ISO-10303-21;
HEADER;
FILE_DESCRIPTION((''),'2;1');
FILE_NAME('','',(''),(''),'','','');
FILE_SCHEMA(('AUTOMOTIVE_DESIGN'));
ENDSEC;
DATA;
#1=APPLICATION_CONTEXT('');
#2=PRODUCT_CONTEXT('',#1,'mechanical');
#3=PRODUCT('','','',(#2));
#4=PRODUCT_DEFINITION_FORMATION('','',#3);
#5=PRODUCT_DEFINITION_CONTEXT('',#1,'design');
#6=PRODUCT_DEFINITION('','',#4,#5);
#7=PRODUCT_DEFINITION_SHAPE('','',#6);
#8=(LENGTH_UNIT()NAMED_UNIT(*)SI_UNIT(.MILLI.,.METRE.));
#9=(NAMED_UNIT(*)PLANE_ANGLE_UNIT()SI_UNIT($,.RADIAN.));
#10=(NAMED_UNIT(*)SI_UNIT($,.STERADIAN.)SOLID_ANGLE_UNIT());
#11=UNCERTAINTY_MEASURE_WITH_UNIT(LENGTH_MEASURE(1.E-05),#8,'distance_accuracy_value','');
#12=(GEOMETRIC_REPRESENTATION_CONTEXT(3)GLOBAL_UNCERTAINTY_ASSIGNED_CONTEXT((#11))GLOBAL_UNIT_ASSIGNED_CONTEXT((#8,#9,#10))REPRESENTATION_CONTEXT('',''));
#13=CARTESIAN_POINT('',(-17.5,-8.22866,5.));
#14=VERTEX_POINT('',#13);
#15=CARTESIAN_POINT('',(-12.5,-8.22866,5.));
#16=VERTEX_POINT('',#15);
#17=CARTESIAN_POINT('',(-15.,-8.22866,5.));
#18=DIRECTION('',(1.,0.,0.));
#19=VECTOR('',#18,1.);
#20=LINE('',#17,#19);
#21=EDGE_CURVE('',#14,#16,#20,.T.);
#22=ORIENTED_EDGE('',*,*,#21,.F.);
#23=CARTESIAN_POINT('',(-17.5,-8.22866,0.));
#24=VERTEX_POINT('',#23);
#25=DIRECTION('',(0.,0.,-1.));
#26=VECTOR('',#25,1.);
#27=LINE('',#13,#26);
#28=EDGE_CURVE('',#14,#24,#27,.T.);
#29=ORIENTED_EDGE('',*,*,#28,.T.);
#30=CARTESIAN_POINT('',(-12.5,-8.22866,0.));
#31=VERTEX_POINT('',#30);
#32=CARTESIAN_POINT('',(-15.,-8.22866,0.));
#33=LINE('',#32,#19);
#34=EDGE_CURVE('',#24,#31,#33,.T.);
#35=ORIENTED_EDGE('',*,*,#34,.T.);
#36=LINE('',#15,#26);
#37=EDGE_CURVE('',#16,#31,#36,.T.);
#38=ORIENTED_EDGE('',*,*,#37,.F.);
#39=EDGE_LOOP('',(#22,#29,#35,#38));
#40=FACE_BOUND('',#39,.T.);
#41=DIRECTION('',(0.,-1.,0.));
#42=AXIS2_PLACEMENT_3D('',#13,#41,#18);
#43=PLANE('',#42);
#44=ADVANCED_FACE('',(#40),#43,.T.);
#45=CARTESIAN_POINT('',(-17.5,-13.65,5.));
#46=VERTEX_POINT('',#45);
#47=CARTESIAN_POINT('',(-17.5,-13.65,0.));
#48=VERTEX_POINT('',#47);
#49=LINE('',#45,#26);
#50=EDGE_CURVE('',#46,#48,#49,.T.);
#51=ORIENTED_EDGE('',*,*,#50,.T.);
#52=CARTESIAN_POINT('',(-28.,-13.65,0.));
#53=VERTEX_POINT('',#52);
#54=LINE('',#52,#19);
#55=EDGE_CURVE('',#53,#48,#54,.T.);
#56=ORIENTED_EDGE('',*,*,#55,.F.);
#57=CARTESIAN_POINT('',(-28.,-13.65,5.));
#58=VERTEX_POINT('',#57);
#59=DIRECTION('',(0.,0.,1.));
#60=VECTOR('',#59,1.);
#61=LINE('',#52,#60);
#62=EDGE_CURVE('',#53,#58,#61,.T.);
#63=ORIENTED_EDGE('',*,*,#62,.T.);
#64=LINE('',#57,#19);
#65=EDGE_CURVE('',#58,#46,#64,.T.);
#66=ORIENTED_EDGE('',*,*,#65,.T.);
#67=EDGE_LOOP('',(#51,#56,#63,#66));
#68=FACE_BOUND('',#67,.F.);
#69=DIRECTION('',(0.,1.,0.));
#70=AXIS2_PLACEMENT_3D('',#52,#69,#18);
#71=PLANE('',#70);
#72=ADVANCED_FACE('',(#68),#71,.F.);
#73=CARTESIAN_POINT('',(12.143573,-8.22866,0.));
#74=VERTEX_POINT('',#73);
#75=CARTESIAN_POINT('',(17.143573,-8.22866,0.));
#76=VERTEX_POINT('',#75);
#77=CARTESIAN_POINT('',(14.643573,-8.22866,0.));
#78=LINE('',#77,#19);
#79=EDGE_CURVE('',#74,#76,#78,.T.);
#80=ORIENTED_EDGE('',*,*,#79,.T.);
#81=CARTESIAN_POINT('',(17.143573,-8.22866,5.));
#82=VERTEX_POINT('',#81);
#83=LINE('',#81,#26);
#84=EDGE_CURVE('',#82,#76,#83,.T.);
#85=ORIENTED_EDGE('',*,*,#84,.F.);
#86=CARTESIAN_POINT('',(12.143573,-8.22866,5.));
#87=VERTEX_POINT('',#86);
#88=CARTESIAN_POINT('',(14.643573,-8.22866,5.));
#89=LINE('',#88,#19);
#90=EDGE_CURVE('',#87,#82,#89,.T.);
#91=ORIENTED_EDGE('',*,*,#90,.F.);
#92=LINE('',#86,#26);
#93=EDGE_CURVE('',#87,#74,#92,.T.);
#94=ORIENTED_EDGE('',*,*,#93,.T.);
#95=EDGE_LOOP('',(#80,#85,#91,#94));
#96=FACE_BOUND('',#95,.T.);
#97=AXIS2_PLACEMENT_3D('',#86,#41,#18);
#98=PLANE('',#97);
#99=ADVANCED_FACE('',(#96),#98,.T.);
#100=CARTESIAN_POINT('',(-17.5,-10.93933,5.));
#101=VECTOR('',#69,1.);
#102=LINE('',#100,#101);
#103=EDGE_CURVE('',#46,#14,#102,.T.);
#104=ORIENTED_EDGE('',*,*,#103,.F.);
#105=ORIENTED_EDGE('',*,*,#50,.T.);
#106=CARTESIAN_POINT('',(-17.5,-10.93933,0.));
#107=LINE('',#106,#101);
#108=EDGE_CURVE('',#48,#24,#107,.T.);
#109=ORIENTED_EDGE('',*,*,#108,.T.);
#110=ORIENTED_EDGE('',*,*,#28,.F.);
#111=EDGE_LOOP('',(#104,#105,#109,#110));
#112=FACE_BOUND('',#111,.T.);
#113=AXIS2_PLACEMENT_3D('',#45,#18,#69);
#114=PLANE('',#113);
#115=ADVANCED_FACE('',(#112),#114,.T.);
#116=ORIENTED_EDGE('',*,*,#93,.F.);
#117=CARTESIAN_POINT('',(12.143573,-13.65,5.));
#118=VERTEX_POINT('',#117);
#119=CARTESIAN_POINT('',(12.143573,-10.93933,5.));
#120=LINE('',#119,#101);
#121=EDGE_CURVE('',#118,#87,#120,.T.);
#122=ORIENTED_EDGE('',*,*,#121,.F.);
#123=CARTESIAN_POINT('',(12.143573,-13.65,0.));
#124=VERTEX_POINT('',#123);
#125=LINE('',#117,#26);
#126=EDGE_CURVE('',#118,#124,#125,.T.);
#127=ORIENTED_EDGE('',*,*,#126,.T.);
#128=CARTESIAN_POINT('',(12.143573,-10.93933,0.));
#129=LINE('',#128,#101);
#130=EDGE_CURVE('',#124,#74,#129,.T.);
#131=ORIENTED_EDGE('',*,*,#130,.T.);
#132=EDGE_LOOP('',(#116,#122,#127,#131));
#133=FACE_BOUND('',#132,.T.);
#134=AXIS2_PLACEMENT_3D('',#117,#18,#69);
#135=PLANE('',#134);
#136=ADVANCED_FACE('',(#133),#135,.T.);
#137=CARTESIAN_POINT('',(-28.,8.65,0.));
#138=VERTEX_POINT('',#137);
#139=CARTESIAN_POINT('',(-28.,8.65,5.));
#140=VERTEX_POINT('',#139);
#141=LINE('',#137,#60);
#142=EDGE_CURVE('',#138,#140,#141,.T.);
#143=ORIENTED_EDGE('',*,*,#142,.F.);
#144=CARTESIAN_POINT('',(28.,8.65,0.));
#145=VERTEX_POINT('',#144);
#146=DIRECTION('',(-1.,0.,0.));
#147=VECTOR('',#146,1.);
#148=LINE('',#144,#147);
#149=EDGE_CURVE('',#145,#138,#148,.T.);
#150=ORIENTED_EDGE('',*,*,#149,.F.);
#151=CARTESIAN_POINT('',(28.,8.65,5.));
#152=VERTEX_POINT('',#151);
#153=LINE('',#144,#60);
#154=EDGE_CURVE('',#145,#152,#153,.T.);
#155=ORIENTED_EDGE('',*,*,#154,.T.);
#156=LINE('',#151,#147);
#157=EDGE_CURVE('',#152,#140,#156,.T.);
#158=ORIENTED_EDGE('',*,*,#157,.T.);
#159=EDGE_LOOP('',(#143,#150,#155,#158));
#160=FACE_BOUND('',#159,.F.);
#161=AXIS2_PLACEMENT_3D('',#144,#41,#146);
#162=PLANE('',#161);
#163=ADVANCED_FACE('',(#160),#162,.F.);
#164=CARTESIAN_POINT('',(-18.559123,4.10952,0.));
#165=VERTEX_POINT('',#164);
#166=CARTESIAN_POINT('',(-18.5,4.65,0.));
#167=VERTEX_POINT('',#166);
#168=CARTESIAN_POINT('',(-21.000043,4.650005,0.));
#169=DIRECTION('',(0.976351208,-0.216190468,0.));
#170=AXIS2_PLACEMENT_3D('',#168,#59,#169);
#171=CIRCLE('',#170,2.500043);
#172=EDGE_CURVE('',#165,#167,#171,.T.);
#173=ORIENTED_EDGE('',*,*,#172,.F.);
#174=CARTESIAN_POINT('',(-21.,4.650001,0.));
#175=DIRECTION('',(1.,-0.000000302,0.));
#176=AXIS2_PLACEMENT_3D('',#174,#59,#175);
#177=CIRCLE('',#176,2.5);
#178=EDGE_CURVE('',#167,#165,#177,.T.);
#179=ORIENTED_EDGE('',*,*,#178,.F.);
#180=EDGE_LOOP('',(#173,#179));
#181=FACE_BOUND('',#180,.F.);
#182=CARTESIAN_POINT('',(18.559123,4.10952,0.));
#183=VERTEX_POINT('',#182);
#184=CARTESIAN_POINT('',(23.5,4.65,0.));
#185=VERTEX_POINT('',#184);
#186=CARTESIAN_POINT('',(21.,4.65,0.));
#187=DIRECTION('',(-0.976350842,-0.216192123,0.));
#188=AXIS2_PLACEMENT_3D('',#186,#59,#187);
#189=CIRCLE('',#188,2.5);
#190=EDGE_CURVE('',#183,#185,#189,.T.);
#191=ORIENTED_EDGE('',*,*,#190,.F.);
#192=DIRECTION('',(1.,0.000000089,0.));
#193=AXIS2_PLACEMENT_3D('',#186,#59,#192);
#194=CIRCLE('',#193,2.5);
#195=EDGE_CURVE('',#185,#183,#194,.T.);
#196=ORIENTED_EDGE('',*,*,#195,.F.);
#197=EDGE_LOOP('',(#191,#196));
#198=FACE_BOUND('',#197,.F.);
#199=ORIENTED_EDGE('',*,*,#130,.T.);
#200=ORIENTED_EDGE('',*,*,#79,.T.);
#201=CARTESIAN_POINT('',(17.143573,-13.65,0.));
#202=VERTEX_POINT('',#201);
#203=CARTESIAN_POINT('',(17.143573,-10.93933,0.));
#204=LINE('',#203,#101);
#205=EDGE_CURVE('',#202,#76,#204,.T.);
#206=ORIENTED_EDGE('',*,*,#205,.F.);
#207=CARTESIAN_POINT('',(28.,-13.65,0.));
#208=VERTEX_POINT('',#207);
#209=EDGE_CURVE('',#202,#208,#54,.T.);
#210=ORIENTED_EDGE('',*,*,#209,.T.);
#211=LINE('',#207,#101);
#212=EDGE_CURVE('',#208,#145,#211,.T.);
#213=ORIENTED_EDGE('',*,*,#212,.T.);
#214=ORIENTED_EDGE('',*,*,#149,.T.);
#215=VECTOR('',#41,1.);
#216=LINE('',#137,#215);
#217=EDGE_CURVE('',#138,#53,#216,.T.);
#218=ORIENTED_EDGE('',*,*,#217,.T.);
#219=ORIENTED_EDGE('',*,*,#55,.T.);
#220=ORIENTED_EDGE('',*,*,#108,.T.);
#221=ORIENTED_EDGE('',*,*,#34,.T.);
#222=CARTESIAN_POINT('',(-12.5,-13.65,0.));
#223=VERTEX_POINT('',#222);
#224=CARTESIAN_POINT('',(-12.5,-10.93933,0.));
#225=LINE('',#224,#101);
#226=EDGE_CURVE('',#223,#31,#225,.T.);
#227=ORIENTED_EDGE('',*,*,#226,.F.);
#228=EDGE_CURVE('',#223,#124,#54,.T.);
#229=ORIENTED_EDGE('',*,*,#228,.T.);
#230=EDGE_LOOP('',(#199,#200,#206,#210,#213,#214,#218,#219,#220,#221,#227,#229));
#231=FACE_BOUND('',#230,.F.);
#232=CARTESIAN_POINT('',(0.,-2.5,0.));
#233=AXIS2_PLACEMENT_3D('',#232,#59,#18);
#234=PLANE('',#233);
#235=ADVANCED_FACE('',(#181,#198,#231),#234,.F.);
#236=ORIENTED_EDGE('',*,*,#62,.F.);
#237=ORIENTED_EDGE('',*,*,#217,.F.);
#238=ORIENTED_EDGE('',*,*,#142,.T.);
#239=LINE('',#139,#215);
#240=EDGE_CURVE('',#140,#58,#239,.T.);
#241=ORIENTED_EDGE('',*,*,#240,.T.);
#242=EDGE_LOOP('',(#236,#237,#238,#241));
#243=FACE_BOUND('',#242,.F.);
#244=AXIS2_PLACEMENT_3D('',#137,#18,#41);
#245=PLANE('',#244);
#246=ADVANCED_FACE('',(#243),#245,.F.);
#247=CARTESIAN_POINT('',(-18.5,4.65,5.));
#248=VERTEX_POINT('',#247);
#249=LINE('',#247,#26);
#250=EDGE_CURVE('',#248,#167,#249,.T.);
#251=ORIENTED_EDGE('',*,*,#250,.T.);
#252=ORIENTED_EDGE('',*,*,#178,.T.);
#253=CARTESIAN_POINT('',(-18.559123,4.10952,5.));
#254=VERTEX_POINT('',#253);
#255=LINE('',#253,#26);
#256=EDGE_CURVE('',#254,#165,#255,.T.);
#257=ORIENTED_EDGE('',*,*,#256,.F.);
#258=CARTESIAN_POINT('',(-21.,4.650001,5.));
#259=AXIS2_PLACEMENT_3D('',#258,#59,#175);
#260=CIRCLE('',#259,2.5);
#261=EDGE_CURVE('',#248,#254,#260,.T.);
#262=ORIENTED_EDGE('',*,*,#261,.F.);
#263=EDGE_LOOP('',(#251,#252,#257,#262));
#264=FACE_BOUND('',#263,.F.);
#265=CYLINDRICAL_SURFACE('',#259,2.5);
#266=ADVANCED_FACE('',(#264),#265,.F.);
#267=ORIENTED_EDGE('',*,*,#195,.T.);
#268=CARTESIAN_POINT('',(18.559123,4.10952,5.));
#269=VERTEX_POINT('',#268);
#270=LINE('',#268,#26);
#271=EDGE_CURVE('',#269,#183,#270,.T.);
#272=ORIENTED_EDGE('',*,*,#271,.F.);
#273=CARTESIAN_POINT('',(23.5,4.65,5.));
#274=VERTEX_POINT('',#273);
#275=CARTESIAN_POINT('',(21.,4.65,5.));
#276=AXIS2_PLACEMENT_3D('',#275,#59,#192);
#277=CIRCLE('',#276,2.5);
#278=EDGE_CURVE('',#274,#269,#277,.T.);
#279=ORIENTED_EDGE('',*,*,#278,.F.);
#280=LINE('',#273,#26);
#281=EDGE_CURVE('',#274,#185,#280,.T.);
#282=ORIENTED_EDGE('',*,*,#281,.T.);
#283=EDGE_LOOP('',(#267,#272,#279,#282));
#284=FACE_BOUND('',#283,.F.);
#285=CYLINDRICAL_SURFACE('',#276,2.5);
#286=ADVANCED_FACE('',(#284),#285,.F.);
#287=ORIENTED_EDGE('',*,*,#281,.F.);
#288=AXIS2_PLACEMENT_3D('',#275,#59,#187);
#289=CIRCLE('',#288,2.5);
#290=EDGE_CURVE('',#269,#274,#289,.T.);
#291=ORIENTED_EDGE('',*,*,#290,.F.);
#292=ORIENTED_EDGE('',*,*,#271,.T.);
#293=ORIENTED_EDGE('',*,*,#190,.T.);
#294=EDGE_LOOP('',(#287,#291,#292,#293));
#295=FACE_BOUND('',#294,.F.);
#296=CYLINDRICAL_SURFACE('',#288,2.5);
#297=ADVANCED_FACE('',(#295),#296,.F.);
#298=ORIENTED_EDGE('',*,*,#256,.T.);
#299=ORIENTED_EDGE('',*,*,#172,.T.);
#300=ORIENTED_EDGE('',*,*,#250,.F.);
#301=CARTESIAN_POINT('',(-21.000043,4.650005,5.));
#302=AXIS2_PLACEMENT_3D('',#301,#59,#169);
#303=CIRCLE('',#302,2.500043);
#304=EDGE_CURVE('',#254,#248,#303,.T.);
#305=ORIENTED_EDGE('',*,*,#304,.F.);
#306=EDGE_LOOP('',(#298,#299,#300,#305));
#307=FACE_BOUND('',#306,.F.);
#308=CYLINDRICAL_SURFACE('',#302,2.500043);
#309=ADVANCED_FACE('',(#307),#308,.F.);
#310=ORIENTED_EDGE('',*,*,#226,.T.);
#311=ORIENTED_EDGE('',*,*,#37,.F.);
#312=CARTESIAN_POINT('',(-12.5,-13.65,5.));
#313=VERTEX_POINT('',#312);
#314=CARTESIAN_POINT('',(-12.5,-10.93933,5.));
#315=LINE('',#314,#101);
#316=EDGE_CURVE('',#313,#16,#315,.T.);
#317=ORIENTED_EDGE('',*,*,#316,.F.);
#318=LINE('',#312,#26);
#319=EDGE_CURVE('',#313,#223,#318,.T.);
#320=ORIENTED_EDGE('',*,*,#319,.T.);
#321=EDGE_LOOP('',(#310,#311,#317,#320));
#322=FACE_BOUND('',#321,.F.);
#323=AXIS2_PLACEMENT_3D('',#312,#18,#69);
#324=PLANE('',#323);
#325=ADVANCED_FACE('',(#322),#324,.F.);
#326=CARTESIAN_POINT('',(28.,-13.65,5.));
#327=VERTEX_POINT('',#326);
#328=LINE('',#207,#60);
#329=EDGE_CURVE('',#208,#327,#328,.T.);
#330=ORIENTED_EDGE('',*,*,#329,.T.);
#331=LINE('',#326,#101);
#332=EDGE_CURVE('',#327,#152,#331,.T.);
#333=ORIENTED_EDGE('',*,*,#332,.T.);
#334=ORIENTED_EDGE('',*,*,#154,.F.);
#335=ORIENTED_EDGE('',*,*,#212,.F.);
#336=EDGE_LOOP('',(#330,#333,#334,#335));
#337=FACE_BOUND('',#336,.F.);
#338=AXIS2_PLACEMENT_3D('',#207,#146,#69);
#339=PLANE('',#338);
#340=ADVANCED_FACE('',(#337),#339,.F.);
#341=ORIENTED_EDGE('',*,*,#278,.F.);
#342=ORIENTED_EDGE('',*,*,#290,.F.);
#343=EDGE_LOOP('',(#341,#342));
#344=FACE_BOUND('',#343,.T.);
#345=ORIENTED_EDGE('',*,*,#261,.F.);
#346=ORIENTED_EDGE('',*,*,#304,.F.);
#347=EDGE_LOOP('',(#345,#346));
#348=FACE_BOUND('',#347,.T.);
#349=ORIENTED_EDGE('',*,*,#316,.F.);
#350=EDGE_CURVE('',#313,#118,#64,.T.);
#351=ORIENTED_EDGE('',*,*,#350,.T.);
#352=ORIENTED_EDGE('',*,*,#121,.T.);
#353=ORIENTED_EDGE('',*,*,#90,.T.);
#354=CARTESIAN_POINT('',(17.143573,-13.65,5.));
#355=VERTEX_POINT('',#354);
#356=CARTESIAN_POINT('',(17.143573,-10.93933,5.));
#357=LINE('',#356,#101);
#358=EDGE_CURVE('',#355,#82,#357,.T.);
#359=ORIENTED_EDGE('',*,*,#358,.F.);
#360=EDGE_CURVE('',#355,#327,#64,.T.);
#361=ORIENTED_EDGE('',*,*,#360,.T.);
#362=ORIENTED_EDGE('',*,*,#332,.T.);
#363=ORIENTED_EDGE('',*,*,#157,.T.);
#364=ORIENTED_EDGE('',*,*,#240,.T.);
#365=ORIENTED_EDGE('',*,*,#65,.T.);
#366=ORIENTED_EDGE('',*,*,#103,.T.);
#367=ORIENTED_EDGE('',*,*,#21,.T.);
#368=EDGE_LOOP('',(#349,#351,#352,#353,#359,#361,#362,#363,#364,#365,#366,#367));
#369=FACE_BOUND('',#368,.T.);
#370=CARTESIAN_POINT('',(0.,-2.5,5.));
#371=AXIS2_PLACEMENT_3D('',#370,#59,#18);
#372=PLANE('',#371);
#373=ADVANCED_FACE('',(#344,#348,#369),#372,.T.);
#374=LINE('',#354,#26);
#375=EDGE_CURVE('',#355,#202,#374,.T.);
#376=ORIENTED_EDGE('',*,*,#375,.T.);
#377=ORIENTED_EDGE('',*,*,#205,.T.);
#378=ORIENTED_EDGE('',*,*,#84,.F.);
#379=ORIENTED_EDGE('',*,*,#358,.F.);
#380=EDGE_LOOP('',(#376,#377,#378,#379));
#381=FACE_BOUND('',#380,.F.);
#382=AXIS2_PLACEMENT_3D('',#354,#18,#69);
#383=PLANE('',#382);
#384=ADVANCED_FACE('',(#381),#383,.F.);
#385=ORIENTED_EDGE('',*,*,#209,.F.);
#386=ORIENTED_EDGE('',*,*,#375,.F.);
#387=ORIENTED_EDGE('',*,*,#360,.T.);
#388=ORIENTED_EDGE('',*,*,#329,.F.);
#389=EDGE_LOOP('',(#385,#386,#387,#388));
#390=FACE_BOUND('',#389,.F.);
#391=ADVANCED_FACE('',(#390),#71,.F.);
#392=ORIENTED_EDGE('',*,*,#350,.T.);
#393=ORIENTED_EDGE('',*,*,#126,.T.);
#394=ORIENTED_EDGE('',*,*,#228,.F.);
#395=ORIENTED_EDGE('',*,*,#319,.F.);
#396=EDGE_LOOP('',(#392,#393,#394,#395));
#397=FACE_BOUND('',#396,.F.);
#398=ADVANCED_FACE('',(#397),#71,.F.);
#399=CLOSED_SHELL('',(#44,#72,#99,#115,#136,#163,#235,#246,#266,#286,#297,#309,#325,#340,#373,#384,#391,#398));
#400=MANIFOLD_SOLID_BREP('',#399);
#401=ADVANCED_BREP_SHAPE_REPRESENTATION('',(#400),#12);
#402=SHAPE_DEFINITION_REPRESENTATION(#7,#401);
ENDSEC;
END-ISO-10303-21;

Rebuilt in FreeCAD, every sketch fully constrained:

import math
import FreeCAD as App
import Part
import Sketcher
Q = App.Units.Quantity

doc = App.newDocument("Part")
body = doc.addObject("PartDesign::Body", "Body")

# Sketch on XY plane
sketch1 = doc.addObject("Sketcher::SketchObject", "Sketch")
body.addObject(sketch1)
sketch1.AttachmentSupport = (doc.XY_Plane, [""])
sketch1.MapMode = "FlatFace"
sketch1.addGeometry([
    Part.LineSegment(App.Vector(28, 9, 0), App.Vector(-28, 9, 0)),
    Part.LineSegment(App.Vector(-28, 9, 0), App.Vector(-28, -14, 0)),
    Part.LineSegment(App.Vector(-28, -14, 0), App.Vector(28, -14, 0)),
    Part.LineSegment(App.Vector(28, -14, 0), App.Vector(28, 9, 0)),
], False)
sketch1.addConstraint([
    Sketcher.Constraint("Coincident", 0, 2, 1, 1),
    Sketcher.Constraint("Coincident", 1, 2, 2, 1),
    Sketcher.Constraint("Coincident", 2, 2, 3, 1),
    Sketcher.Constraint("Coincident", 3, 2, 0, 1),
    Sketcher.Constraint("Horizontal", 0),
    Sketcher.Constraint("Vertical", 1),
    Sketcher.Constraint("Horizontal", 2),
    Sketcher.Constraint("Vertical", 3),
    Sketcher.Constraint("DistanceX", 0, 2, 0, 1, Q("56 mm")),
    Sketcher.Constraint("DistanceY", 1, 2, 1, 1, Q("22.3 mm")),
    Sketcher.Constraint("DistanceX", 0, 2, -1, 1, Q("28 mm")),
    Sketcher.Constraint("DistanceY", -1, 1, 0, 2, Q("8.65 mm")),
])
pad1 = doc.addObject("PartDesign::Pad", "Pad")
body.addObject(pad1)
pad1.Profile = sketch1
pad1.Length = 5

# Sketch on XY plane
sketch2 = doc.addObject("Sketcher::SketchObject", "Sketch001")
body.addObject(sketch2)
sketch2.AttachmentSupport = (doc.XY_Plane, [""])
sketch2.MapMode = "FlatFace"
sketch2.AttachmentOffset = App.Placement(App.Vector(0, 0, 5), App.Rotation())
sketch2.addGeometry([
    Part.ArcOfCircle(Part.Circle(App.Vector(-21.000043, 4.650005, 0), App.Vector(0, 0, 1), 2.500043), math.radians(-12.485379), math.radians(-0.000126)),
    Part.ArcOfCircle(Part.Circle(App.Vector(-21, 4.650001, 0), App.Vector(0, 0, 1), 2.5), math.radians(-0.000017), math.radians(347.514513)),
    Part.ArcOfCircle(Part.Circle(App.Vector(21, 4.65, 0), App.Vector(0, 0, 1), 2.5), math.radians(0.000005), math.radians(192.485464)),
    Part.ArcOfCircle(Part.Circle(App.Vector(21, 4.65, 0), App.Vector(0, 0, 1), 2.5), math.radians(-167.514524), math.radians(-0.000007)),
], False)
sketch2.addConstraint([
    Sketcher.Constraint("Coincident", 0, 1, 1, 2),
    Sketcher.Constraint("Coincident", 1, 1, 0, 2),
    Sketcher.Constraint("Coincident", 2, 1, 3, 2),
    Sketcher.Constraint("Coincident", 3, 1, 2, 2),
    Sketcher.Constraint("Radius", 1, Q("2.5 mm")),
    Sketcher.Constraint("Radius", 2, Q("2.5 mm")),
    Sketcher.Constraint("Radius", 3, Q("2.5 mm")),
    Sketcher.Constraint("DistanceX", 1, 3, -1, 1, Q("21 mm")),
    Sketcher.Constraint("DistanceX", -1, 1, 2, 3, Q("21 mm")),
    Sketcher.Constraint("DistanceY", -1, 1, 1, 3, Q("4.650001 mm")),
    Sketcher.Constraint("DistanceY", -1, 1, 2, 3, Q("4.65 mm")),
    Sketcher.Constraint("DistanceY", -1, 1, 1, 1, Q("4.65 mm")),
    Sketcher.Constraint("DistanceY", -1, 1, 2, 1, Q("4.65 mm")),
    Sketcher.Constraint("Radius", 0, Q("2.500043 mm")),
    Sketcher.Constraint("DistanceY", -1, 1, 0, 1, Q("4.10952 mm")),
    Sketcher.Constraint("DistanceY", -1, 1, 3, 1, Q("4.10952 mm")),
])
pocket1 = doc.addObject("PartDesign::Pocket", "Pocket")
body.addObject(pocket1)
pocket1.Profile = sketch2
pocket1.Length = 5

# Sketch on XY plane
sketch3 = doc.addObject("Sketcher::SketchObject", "Sketch002")
body.addObject(sketch3)
sketch3.AttachmentSupport = (doc.XY_Plane, [""])
sketch3.MapMode = "FlatFace"
sketch3.AttachmentOffset = App.Placement(App.Vector(0, 0, 5), App.Rotation())
sketch3.addGeometry([
    Part.LineSegment(App.Vector(-18, -8, 0), App.Vector(-18, -14, 0)),  # 0
    Part.LineSegment(App.Vector(-18, -14, 0), App.Vector(-12, -14, 0)),  # 1
    Part.LineSegment(App.Vector(-12, -14, 0), App.Vector(-12, -8, 0)),  # 2
    Part.LineSegment(App.Vector(-12, -8, 0), App.Vector(-18, -8, 0)),  # 3
    Part.LineSegment(App.Vector(12, -8, 0), App.Vector(12, -14, 0)),  # 4
    Part.LineSegment(App.Vector(12, -14, 0), App.Vector(17, -14, 0)),  # 5
    Part.LineSegment(App.Vector(17, -14, 0), App.Vector(17, -8, 0)),  # 6
    Part.LineSegment(App.Vector(17, -8, 0), App.Vector(12, -8, 0)),  # 7
], False)
sketch3.addConstraint([
    Sketcher.Constraint("Coincident", 0, 2, 1, 1),
    Sketcher.Constraint("Coincident", 1, 2, 2, 1),
    Sketcher.Constraint("Coincident", 2, 2, 3, 1),
    Sketcher.Constraint("Coincident", 3, 2, 0, 1),
    Sketcher.Constraint("Coincident", 4, 2, 5, 1),
    Sketcher.Constraint("Coincident", 5, 2, 6, 1),
    Sketcher.Constraint("Coincident", 6, 2, 7, 1),
    Sketcher.Constraint("Coincident", 7, 2, 4, 1),
    Sketcher.Constraint("Vertical", 0),
    Sketcher.Constraint("Horizontal", 1),
    Sketcher.Constraint("Vertical", 2),
    Sketcher.Constraint("Horizontal", 3),
    Sketcher.Constraint("Vertical", 4),
    Sketcher.Constraint("Horizontal", 5),
    Sketcher.Constraint("Vertical", 6),
    Sketcher.Constraint("Horizontal", 7),
    Sketcher.Constraint("Horizontal", 1, 2, 4, 2),
    Sketcher.Constraint("Horizontal", 3, 2, 6, 2),
    Sketcher.Constraint("Equal", 3, 5),
    Sketcher.Constraint("DistanceX", 1, 1, 1, 2, Q("5 mm")),
    Sketcher.Constraint("DistanceX", 0, 2, -1, 1, Q("17.5 mm")),
    Sketcher.Constraint("DistanceY", 0, 2, -1, 1, Q("13.65 mm")),
    Sketcher.Constraint("DistanceY", 0, 2, 0, 1, Q("5.42134 mm")),
    Sketcher.Constraint("DistanceX", -1, 1, 4, 2, Q("12.143573 mm")),
])
pocket2 = doc.addObject("PartDesign::Pocket", "Pocket001")
body.addObject(pocket2)
pocket2.Profile = sketch3
pocket2.Length = 5

doc.recompute()
